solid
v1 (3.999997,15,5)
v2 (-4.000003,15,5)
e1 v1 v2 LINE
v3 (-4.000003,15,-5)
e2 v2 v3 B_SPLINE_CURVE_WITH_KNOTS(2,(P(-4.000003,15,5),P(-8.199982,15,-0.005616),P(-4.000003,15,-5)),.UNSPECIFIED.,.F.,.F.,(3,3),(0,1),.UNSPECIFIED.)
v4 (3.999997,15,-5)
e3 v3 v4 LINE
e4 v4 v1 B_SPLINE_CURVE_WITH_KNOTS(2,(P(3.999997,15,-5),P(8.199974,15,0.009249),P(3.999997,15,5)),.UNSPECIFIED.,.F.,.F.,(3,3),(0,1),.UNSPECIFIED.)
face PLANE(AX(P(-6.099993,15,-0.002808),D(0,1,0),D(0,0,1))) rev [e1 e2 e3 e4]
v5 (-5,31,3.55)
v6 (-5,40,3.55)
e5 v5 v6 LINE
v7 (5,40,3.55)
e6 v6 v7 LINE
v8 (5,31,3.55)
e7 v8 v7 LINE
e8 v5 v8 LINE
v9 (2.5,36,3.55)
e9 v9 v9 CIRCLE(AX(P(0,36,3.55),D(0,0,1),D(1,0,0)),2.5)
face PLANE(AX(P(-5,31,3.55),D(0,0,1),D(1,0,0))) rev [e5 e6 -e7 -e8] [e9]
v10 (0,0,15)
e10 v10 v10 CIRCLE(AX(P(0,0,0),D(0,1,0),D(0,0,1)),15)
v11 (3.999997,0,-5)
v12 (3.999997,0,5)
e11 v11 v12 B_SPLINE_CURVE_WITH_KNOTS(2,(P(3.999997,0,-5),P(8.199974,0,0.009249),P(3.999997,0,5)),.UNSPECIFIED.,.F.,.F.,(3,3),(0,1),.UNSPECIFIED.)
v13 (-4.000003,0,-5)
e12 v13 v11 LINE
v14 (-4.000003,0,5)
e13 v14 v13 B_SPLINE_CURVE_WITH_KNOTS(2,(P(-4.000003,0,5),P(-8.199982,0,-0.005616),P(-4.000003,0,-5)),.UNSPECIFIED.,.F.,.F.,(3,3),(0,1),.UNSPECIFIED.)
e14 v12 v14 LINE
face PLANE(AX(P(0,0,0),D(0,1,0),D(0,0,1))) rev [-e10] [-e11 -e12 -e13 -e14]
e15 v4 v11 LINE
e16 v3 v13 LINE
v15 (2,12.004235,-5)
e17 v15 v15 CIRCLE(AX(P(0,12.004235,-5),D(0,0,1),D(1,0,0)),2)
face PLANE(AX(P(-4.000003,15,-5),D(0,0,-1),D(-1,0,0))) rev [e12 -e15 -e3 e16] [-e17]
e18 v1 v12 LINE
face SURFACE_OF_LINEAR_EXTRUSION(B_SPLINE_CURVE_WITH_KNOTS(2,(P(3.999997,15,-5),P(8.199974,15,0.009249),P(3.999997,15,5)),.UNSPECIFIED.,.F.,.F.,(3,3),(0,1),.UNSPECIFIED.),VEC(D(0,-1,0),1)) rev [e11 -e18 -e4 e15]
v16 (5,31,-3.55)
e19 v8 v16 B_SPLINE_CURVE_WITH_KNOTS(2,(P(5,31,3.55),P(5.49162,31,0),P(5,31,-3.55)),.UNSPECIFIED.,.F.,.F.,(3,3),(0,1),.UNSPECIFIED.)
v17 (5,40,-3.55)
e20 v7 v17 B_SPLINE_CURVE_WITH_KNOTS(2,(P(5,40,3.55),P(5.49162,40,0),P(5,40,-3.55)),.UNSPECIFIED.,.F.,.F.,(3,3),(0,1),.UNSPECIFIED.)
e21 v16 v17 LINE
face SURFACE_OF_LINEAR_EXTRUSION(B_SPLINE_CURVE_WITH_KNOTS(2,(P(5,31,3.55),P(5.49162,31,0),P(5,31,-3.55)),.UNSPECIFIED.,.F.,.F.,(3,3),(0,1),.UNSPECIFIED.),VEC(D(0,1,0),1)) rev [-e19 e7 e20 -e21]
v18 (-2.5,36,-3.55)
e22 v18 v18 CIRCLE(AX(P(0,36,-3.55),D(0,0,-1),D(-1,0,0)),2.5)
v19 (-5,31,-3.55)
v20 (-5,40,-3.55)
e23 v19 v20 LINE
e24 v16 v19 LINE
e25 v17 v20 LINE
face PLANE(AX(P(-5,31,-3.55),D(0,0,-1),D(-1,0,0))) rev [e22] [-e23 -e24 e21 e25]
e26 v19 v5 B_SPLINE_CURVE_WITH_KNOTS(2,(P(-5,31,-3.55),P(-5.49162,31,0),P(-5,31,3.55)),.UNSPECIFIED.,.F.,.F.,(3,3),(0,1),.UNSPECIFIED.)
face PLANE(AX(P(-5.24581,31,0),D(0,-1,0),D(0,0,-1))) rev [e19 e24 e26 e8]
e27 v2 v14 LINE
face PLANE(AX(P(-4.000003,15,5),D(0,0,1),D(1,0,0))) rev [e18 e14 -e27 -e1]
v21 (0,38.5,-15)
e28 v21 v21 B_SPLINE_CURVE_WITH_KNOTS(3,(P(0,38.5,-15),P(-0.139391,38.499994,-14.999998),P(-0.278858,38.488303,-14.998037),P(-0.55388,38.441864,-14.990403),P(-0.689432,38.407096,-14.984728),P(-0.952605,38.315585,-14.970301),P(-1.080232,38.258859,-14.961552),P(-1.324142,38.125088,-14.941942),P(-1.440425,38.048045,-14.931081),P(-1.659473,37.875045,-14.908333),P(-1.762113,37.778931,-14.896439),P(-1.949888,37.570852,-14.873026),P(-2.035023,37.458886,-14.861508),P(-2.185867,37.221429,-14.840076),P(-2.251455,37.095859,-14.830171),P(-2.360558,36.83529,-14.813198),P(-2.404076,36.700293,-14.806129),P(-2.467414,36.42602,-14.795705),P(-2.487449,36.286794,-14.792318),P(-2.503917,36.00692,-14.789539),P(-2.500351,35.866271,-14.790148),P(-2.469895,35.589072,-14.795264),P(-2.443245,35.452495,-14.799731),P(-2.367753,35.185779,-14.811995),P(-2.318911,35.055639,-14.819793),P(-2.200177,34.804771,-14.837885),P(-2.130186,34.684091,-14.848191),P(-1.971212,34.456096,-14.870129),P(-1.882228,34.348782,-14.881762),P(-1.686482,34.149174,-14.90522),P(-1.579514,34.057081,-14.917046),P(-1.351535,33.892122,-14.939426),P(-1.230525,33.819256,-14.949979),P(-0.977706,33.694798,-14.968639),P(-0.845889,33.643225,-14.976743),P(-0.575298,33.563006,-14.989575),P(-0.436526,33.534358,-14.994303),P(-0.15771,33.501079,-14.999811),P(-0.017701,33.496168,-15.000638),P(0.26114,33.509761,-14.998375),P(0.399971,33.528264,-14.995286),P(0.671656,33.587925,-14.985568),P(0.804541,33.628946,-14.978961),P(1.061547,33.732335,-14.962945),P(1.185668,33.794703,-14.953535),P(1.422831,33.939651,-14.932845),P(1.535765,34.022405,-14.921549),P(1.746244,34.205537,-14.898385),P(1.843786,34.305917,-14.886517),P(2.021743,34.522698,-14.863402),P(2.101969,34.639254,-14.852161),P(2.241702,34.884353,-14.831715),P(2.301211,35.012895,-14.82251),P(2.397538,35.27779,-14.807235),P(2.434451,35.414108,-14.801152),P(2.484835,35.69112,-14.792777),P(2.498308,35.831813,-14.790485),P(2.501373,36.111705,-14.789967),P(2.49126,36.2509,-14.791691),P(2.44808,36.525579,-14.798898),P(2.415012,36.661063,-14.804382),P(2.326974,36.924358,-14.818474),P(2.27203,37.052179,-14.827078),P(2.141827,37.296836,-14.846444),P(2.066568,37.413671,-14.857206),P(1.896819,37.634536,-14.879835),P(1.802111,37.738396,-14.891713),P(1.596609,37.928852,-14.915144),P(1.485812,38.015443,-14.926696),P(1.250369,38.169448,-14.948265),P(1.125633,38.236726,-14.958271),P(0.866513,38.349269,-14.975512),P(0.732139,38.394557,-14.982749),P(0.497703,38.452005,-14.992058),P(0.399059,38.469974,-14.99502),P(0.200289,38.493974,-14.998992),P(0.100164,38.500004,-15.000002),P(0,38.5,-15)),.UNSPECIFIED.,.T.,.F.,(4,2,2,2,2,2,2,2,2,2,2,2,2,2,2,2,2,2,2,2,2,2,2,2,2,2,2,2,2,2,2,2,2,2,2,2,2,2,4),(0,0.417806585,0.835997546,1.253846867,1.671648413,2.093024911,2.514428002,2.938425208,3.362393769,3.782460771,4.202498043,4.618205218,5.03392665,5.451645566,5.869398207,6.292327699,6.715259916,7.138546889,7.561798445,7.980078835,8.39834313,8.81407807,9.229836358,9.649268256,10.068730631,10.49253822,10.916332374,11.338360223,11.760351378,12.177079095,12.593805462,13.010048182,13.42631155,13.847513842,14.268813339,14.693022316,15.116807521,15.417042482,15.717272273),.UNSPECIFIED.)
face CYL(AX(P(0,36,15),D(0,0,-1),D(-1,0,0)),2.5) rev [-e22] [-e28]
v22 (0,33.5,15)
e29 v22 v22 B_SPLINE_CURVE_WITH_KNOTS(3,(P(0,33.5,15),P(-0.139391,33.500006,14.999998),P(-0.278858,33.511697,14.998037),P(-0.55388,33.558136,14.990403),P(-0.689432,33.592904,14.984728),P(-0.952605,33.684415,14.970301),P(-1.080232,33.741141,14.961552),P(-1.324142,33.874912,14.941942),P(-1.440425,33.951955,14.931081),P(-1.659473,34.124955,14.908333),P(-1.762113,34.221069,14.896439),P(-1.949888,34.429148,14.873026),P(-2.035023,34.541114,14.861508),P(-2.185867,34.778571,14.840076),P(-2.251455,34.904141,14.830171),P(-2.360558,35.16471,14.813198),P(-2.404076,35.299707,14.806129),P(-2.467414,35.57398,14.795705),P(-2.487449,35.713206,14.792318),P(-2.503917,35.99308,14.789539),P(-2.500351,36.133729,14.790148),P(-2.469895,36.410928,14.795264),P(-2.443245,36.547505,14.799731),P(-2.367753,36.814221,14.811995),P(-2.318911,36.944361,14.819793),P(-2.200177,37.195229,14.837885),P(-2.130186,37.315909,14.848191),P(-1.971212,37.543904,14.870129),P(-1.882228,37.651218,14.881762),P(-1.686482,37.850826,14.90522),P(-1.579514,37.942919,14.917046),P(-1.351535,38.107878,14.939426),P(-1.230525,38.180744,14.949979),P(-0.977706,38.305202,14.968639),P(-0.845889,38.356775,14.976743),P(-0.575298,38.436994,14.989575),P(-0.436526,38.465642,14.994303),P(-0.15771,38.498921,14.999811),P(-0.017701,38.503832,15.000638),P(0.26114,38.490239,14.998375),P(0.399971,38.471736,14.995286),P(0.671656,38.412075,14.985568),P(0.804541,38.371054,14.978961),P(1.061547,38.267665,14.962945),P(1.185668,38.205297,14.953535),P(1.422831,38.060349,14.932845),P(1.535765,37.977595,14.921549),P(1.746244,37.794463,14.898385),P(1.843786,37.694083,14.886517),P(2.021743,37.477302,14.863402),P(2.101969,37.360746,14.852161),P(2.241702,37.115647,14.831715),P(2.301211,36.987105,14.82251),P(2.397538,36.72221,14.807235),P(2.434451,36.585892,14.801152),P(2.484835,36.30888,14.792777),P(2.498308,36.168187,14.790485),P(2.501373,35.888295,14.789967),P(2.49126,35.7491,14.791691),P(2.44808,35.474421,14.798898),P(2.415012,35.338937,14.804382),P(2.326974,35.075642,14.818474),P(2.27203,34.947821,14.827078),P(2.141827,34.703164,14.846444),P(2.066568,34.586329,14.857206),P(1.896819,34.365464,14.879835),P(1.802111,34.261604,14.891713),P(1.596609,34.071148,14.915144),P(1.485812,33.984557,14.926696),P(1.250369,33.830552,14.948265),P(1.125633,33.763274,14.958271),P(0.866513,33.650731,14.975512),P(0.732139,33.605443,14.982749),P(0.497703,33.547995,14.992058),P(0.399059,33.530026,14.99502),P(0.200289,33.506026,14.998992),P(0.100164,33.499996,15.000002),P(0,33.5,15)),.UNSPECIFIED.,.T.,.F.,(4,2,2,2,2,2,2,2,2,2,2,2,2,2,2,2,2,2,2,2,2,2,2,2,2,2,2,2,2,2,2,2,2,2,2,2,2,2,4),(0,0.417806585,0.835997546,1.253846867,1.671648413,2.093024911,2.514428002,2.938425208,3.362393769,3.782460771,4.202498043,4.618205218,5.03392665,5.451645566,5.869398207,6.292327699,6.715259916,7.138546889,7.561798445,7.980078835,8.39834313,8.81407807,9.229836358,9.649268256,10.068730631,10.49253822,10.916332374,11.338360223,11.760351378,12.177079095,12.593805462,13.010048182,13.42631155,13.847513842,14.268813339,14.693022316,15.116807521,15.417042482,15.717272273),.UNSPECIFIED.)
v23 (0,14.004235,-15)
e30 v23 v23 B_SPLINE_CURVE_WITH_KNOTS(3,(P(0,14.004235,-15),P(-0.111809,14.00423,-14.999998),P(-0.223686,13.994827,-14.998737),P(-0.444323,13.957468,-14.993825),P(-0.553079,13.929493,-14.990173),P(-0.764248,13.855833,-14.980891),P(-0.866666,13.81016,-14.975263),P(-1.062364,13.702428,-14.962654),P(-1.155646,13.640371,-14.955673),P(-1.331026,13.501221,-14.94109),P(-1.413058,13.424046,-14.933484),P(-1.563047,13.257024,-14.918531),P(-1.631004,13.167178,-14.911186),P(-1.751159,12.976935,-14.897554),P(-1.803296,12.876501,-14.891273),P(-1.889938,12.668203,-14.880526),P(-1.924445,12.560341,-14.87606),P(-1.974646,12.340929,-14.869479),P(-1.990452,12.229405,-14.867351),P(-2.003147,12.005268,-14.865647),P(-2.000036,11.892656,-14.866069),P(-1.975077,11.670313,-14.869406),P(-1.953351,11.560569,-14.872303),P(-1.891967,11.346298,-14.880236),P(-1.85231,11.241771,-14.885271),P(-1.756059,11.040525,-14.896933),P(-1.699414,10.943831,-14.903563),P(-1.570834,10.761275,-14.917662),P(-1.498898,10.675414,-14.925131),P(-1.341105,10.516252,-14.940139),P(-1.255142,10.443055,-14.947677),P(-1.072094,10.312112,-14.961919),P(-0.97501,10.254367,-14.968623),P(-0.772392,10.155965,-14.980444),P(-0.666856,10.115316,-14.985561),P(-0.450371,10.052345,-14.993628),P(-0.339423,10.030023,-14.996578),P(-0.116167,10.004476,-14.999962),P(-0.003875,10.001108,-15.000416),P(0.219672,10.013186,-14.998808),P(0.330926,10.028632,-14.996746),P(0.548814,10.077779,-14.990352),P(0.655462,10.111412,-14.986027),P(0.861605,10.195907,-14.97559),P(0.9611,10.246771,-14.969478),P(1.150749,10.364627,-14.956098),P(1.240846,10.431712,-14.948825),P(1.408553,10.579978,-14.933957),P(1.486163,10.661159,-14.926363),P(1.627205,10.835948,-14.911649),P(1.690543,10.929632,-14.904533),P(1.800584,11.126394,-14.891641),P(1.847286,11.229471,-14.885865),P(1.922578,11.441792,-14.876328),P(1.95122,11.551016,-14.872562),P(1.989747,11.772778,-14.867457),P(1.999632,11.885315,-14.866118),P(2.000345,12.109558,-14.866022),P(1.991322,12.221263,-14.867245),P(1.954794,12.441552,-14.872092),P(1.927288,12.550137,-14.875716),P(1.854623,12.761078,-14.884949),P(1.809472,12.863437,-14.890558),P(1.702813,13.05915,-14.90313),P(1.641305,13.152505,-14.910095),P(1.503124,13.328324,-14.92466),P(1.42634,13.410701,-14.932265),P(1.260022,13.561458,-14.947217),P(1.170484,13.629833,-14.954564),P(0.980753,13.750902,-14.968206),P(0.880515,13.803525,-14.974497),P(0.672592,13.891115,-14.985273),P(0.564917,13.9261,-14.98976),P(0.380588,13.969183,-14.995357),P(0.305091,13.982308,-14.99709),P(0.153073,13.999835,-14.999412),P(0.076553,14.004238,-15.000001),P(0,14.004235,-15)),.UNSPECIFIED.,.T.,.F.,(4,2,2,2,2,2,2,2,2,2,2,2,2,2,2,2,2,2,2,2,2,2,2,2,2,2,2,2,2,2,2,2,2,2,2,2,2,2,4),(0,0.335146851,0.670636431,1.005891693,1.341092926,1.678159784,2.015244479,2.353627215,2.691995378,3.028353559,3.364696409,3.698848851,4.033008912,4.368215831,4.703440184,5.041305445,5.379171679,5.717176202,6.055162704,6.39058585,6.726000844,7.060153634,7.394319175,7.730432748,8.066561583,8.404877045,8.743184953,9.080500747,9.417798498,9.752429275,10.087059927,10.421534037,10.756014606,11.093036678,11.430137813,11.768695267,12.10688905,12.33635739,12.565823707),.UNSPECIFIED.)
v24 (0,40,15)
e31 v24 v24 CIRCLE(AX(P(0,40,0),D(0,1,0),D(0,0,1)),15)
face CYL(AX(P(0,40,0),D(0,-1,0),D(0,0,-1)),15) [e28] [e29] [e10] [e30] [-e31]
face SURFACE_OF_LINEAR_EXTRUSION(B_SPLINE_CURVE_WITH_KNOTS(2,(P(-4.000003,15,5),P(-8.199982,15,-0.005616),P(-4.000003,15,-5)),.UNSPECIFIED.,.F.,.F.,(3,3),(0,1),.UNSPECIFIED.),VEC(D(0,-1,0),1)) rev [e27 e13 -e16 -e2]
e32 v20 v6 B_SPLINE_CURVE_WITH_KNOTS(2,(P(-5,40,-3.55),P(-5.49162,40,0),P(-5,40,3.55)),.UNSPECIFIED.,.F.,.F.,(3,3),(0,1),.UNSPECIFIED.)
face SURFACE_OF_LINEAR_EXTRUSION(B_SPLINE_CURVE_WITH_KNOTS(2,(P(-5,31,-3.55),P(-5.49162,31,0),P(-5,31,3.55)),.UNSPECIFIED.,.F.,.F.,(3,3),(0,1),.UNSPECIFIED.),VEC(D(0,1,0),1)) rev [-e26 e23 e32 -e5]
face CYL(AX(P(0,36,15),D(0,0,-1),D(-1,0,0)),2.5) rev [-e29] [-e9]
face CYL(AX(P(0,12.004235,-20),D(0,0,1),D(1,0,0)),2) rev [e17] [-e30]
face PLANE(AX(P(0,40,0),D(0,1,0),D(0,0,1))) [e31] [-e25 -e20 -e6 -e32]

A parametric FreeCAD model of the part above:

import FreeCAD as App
import Part
import Sketcher
Q = App.Units.Quantity

doc = App.newDocument("Part")
params = doc.addObject("Spreadsheet::Sheet", "Params")
for row, (alias, value) in enumerate([
    ("sketch1_diameter", "30 mm"),
    ("pad1_length", "40 mm"),
    ("pocket1_length", "15 mm"),
    ("sketch3_diameter", "4 mm"),
    ("pocket2_length", "15 mm"),
    ("pocket3_length", "9 mm"),
    ("sketch5_diameter", "5 mm"),
], start=1):
    params.set(f"A{row}", alias)
    params.set(f"B{row}", "=" + value)
    params.setAlias(f"B{row}", alias)

body = doc.addObject("PartDesign::Body", "Body")

# Sketch on XZ plane
sketch1 = body.newObject("Sketcher::SketchObject", "Sketch")
sketch1.AttachmentSupport = (doc.getObject("XZ_Plane"), [""])
sketch1.MapMode = "FlatFace"
sketch1.addGeometry(Part.Circle(App.Vector(0, 0, 0), App.Vector(0, 0, 1), 15), False)
sketch1.addConstraint([
    Sketcher.Constraint("Coincident", 0, 3, -1, 1),
    Sketcher.Constraint("Diameter", 0, Q("30 mm")),
])
sketch1.setExpression("Constraints[1]", "Params.sketch1_diameter")
pad1 = body.newObject("PartDesign::Pad", "Pad")
pad1.Profile = sketch1
pad1.setExpression("Length", "Params.pad1_length")
pad1.Reversed = True

# Sketch on XZ plane
sketch2 = body.newObject("Sketcher::SketchObject", "Sketch001")
sketch2.AttachmentSupport = (doc.getObject("XZ_Plane"), [""])
sketch2.MapMode = "FlatFace"
sketch2.addGeometry([
    Part.LineSegment(App.Vector(3.999997, 5, 0), App.Vector(-4.000003, 5, 0)),
    Part.BSplineCurve([App.Vector(-4.000003, 5, 0), App.Vector(-8.199982, -0.005616, 0), App.Vector(-4.000003, -5, 0)], [3, 3], [0, 1], False, 2, [1, 1, 1], False),
    Part.LineSegment(App.Vector(-4.000003, -5, 0), App.Vector(3.999997, -5, 0)),
    Part.BSplineCurve([App.Vector(3.999997, 5, 0), App.Vector(8.199974, 0.009249, 0), App.Vector(3.999997, -5, 0)], [3, 3], [0, 1], False, 2, [1, 1, 1], False),
], False)
sketch2.addConstraint([
    Sketcher.Constraint("Block", 1),
    Sketcher.Constraint("Block", 3),
    Sketcher.Constraint("Coincident", 0, 2, 1, 1),
    Sketcher.Constraint("Coincident", 1, 2, 2, 1),
    Sketcher.Constraint("Coincident", 2, 2, 3, 2),
    Sketcher.Constraint("Coincident", 3, 1, 0, 1),
])
pocket1 = body.newObject("PartDesign::Pocket", "Pocket")
pocket1.Profile = sketch2
pocket1.setExpression("Length", "Params.pocket1_length")

# Sketch on XY plane
sketch3 = body.newObject("Sketcher::SketchObject", "Sketch002")
sketch3.AttachmentSupport = (doc.getObject("XY_Plane"), [""])
sketch3.MapMode = "FlatFace"
sketch3.AttachmentOffset = App.Placement(App.Vector(0, 0, -5), App.Rotation())
sketch3.addGeometry(Part.Circle(App.Vector(0, 12.004235, 0), App.Vector(0, 0, 1), 2), False)
sketch3.addConstraint([
    Sketcher.Constraint("PointOnObject", 0, 3, -2),
    Sketcher.Constraint("Diameter", 0, Q("4 mm")),
    Sketcher.Constraint("DistanceY", -1, 1, 0, 3, Q("12.004235 mm")),
])
sketch3.setExpression("Constraints[1]", "Params.sketch3_diameter")
pocket2 = body.newObject("PartDesign::Pocket", "Pocket001")
pocket2.Profile = sketch3
pocket2.setExpression("Length", "Params.pocket2_length")

# Sketch on XZ plane
sketch4 = body.newObject("Sketcher::SketchObject", "Sketch003")
sketch4.AttachmentSupport = (doc.getObject("XZ_Plane"), [""])
sketch4.MapMode = "FlatFace"
sketch4.AttachmentOffset = App.Placement(App.Vector(0, 0, -40), App.Rotation())
sketch4.addGeometry([
    Part.LineSegment(App.Vector(5, -3.55, 0), App.Vector(-5, -3.55, 0)),
    Part.BSplineCurve([App.Vector(-5, -3.55, 0), App.Vector(-5.49162, 0, 0), App.Vector(-5, 3.55, 0)], [3, 3], [0, 1], False, 2, [1, 1, 1], False),
    Part.LineSegment(App.Vector(-5, 3.55, 0), App.Vector(5, 3.55, 0)),
    Part.BSplineCurve([App.Vector(5, -3.55, 0), App.Vector(5.49162, 0, 0), App.Vector(5, 3.55, 0)], [3, 3], [0, 1], False, 2, [1, 1, 1], False),
], False)
sketch4.addConstraint([
    Sketcher.Constraint("Block", 1),
    Sketcher.Constraint("Block", 3),
    Sketcher.Constraint("Coincident", 0, 2, 1, 1),
    Sketcher.Constraint("Coincident", 1, 2, 2, 1),
    Sketcher.Constraint("Coincident", 2, 2, 3, 2),
    Sketcher.Constraint("Coincident", 3, 1, 0, 1),
])
pocket3 = body.newObject("PartDesign::Pocket", "Pocket002")
pocket3.Profile = sketch4
pocket3.setExpression("Length", "Params.pocket3_length")
pocket3.Reversed = True

# Sketch on XY plane
sketch5 = body.newObject("Sketcher::SketchObject", "Sketch004")
sketch5.AttachmentSupport = (doc.getObject("XY_Plane"), [""])
sketch5.MapMode = "FlatFace"
sketch5.AttachmentOffset = App.Placement(App.Vector(0, 0, 3.55), App.Rotation())
sketch5.addGeometry(Part.Circle(App.Vector(0, 36, 0), App.Vector(0, 0, 1), 2.5), False)
sketch5.addConstraint([
    Sketcher.Constraint("PointOnObject", 0, 3, -2),
    Sketcher.Constraint("Diameter", 0, Q("5 mm")),
    Sketcher.Constraint("DistanceY", -1, 1, 0, 3, Q("36 mm")),
])
sketch5.setExpression("Constraints[1]", "Params.sketch5_diameter")
pocket4 = body.newObject("PartDesign::Pocket", "Pocket003")
pocket4.Profile = sketch5
pocket4.Type = "ThroughAll"
pocket4.Midplane = True

doc.recompute()
